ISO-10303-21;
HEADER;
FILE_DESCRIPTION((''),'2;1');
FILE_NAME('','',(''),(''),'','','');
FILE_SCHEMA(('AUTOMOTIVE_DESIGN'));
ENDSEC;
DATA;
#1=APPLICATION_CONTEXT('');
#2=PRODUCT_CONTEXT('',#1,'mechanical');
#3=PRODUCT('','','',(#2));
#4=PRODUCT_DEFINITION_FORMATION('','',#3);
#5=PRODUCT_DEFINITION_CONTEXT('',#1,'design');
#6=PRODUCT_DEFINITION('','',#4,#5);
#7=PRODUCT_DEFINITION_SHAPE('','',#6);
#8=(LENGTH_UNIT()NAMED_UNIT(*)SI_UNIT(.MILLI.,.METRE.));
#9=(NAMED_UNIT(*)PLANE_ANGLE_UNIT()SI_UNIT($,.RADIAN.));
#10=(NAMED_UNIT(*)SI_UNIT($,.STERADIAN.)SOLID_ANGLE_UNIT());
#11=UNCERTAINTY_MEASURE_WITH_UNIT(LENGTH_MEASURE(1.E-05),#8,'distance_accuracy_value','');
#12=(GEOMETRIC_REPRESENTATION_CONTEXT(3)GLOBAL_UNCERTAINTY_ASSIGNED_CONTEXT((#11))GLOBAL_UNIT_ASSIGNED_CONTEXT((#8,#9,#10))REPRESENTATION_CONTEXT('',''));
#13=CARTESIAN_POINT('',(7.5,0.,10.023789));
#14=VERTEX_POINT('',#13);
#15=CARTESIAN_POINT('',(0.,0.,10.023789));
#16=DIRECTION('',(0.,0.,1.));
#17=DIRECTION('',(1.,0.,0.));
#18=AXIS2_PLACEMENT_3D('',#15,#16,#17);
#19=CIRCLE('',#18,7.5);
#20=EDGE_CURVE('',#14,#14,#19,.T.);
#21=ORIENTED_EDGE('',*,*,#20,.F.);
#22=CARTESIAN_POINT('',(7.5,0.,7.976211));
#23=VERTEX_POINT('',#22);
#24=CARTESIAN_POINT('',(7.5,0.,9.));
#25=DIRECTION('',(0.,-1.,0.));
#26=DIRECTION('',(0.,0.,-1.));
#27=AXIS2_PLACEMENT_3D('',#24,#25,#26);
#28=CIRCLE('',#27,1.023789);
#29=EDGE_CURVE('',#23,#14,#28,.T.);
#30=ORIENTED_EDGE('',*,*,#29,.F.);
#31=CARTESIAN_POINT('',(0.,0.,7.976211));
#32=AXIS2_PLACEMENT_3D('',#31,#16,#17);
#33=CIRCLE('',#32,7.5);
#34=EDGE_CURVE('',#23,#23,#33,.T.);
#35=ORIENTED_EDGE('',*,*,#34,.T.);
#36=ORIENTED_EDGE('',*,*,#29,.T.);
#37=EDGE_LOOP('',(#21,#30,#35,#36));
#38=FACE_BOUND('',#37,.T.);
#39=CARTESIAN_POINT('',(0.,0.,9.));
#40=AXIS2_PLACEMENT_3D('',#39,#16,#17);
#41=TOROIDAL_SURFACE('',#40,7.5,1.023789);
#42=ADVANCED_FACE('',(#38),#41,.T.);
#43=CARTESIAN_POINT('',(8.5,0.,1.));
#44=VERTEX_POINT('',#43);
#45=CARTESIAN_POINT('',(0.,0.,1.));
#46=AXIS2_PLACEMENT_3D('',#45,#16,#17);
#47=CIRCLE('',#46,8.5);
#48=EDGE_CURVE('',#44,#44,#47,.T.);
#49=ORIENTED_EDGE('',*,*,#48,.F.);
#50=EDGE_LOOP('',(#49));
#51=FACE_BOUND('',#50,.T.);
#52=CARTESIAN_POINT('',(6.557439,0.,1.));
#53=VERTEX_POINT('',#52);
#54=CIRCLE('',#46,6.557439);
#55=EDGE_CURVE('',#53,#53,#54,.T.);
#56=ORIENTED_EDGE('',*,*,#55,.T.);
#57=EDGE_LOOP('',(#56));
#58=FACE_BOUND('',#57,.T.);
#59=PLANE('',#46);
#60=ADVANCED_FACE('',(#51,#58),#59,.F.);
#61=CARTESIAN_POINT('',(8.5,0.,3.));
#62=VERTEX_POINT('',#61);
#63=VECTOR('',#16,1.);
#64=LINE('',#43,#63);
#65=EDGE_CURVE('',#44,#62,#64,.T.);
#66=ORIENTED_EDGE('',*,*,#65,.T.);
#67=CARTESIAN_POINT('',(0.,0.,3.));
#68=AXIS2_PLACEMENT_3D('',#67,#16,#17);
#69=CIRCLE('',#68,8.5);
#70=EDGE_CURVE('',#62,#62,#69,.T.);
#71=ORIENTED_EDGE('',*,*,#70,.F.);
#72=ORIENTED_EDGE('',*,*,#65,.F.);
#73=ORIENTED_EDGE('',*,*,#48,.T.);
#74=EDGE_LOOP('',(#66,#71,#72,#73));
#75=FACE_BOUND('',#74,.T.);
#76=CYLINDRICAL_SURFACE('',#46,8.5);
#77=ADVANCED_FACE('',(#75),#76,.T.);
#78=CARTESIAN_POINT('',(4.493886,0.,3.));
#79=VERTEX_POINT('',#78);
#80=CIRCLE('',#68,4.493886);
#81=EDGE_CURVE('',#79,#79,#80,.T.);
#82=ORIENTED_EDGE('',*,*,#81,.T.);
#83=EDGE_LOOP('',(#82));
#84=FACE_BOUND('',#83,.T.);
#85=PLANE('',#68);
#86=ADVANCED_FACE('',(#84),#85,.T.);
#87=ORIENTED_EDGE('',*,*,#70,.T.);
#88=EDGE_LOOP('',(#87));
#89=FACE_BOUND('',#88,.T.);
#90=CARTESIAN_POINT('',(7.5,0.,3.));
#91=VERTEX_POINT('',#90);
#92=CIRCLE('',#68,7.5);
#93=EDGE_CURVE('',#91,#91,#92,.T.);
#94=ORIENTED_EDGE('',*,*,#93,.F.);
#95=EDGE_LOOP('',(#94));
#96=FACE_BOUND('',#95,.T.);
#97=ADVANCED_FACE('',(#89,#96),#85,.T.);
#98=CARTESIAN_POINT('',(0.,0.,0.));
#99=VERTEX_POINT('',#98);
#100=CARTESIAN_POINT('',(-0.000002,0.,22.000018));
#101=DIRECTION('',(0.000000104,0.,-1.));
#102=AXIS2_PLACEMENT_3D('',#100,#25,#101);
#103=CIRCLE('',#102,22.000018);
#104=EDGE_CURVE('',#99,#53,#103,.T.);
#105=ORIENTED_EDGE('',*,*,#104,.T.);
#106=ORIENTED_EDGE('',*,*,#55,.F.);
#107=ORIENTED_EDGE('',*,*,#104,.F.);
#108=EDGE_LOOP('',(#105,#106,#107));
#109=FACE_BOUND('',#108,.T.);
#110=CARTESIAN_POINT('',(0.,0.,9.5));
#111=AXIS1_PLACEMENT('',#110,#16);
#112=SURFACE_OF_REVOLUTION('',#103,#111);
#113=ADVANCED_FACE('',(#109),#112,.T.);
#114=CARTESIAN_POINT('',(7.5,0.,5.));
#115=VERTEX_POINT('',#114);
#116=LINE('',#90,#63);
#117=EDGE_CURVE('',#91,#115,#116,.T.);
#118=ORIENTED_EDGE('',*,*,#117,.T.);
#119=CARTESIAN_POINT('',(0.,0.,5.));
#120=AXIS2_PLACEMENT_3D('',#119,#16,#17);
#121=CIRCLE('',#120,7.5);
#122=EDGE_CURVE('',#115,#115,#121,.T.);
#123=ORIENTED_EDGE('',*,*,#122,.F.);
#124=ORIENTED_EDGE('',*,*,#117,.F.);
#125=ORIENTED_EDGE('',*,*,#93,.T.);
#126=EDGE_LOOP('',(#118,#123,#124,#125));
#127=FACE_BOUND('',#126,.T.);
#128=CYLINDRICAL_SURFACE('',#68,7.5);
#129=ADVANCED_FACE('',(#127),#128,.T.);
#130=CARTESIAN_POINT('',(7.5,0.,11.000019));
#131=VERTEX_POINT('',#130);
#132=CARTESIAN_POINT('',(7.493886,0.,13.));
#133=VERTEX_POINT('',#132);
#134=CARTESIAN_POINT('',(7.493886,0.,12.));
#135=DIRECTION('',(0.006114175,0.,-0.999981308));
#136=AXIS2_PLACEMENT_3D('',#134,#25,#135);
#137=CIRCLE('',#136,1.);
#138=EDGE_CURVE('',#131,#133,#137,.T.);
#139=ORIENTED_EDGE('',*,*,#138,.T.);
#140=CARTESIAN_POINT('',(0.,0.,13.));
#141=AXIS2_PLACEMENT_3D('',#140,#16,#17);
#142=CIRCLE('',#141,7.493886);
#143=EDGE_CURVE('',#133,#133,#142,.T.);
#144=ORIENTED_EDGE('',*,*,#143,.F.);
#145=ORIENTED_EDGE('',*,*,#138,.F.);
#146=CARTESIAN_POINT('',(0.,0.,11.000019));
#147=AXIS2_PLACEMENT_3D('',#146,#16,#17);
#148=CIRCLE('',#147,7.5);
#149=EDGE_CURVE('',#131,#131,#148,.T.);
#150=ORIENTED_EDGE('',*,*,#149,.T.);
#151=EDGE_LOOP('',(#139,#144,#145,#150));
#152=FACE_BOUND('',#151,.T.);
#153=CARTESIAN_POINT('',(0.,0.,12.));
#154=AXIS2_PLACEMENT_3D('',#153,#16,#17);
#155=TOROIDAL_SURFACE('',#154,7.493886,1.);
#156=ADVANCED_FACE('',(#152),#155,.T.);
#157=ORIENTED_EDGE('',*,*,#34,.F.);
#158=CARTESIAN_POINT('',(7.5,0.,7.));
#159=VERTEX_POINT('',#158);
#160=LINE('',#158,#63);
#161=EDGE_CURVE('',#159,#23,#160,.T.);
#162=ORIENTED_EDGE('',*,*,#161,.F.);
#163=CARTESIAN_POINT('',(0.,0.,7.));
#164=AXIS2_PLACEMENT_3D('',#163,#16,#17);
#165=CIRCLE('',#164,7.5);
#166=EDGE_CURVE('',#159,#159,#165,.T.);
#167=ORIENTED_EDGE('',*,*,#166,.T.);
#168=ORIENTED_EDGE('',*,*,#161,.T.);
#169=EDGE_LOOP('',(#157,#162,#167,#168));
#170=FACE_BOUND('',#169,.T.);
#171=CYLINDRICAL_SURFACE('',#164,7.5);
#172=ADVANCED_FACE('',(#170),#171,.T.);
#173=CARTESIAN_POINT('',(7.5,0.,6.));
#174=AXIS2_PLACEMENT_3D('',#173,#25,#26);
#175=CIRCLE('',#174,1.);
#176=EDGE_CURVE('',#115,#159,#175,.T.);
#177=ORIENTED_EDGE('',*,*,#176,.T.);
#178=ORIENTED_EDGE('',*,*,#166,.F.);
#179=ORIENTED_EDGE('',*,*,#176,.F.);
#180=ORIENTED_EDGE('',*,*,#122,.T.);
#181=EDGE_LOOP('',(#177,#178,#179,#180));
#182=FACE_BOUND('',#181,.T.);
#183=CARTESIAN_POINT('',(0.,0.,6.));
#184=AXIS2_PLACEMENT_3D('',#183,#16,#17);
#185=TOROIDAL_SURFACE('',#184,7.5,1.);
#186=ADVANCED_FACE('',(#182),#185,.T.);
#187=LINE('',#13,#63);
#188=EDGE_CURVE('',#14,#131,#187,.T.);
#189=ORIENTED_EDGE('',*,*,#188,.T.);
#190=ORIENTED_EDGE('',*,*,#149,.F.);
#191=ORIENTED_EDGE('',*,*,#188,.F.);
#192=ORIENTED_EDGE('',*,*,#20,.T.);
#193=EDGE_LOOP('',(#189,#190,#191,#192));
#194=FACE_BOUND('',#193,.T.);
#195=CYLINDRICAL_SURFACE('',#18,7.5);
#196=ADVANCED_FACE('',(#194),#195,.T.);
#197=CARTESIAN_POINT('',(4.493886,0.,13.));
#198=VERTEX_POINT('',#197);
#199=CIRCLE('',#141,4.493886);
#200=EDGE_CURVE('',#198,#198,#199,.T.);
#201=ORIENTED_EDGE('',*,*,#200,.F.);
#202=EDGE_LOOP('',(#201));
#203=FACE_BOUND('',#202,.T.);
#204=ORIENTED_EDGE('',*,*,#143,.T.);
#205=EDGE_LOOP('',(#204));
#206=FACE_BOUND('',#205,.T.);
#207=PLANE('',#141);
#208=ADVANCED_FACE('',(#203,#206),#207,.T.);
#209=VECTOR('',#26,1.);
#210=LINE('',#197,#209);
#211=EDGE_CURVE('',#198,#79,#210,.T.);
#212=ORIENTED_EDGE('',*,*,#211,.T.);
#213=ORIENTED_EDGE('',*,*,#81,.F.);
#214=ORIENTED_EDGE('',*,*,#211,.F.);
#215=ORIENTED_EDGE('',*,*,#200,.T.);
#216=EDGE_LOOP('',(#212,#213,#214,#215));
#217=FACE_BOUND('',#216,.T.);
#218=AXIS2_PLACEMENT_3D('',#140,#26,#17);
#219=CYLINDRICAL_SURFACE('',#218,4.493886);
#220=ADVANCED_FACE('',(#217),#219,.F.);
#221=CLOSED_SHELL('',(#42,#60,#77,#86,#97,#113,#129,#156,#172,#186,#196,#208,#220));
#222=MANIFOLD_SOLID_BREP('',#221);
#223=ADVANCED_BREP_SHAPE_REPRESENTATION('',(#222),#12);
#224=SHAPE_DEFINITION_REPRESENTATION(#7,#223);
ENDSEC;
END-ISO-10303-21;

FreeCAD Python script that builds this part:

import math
import FreeCAD as App
import Part
import Sketcher
Q = App.Units.Quantity

doc = App.newDocument("Part")
body = doc.addObject("PartDesign::Body", "Body")

# Sketch on XZ plane
sketch1 = doc.addObject("Sketcher::SketchObject", "Sketch")
body.addObject(sketch1)
sketch1.AttachmentSupport = (doc.XZ_Plane, [""])
sketch1.MapMode = "FlatFace"
sketch1.addGeometry(Part.LineSegment(App.Vector(8.5, 1, 0), App.Vector(8.5, 3, 0)), False)
sketch1.addGeometry(Part.LineSegment(App.Vector(8.5, 3, 0), App.Vector(7.5, 3, 0)), False)
sketch1.addGeometry(Part.LineSegment(App.Vector(7.5, 3, 0), App.Vector(7.5, 5, 0)), False)
sketch1.addGeometry(Part.ArcOfCircle(Part.Circle(App.Vector(7.5, 6, 0), App.Vector(0, 0, 1), 1), math.radians(-90), math.radians(90)), False)
sketch1.addGeometry(Part.LineSegment(App.Vector(7.5, 7, 0), App.Vector(7.5, 8, 0)), False)
sketch1.addGeometry(Part.ArcOfCircle(Part.Circle(App.Vector(7.5, 9, 0), App.Vector(0, 0, 1), 1), math.radians(-90), math.radians(90)), False)
sketch1.addGeometry(Part.LineSegment(App.Vector(7.5, 10, 0), App.Vector(7.5, 11, 0)), False)
sketch1.addGeometry(Part.ArcOfCircle(Part.Circle(App.Vector(7.5, 12, 0), App.Vector(0, 0, 1), 1), math.radians(-90), math.radians(90)), False)
sketch1.addGeometry(Part.LineSegment(App.Vector(7.5, 13, 0), App.Vector(4.5, 13, 0)), False)
sketch1.addGeometry(Part.LineSegment(App.Vector(4.5, 13, 0), App.Vector(4.5, 3, 0)), False)
sketch1.addGeometry(Part.LineSegment(App.Vector(4.5, 3, 0), App.Vector(0, 3, 0)), False)
sketch1.addGeometry(Part.LineSegment(App.Vector(0, 3, 0), App.Vector(0, 0, 0)), False)
sketch1.addGeometry(Part.ArcOfCircle(Part.Circle(App.Vector(0, 22, 0), App.Vector(0, 0, 1), 22), math.radians(-90), math.radians(-72.66)), False)
sketch1.addGeometry(Part.LineSegment(App.Vector(6.6, 1, 0), App.Vector(8.5, 1, 0)), False)
sketch1.addConstraint(Sketcher.Constraint("Coincident", 0, 2, 1, 1))
sketch1.addConstraint(Sketcher.Constraint("Coincident", 1, 2, 2, 1))
sketch1.addConstraint(Sketcher.Constraint("Coincident", 2, 2, 3, 1))
sketch1.addConstraint(Sketcher.Constraint("Coincident", 3, 2, 4, 1))
sketch1.addConstraint(Sketcher.Constraint("Coincident", 4, 2, 5, 1))
sketch1.addConstraint(Sketcher.Constraint("Coincident", 5, 2, 6, 1))
sketch1.addConstraint(Sketcher.Constraint("Coincident", 6, 2, 7, 1))
sketch1.addConstraint(Sketcher.Constraint("Tangent", 7, 2, 8, 1))
sketch1.addConstraint(Sketcher.Constraint("Coincident", 8, 2, 9, 1))
sketch1.addConstraint(Sketcher.Constraint("Coincident", 9, 2, 10, 1))
sketch1.addConstraint(Sketcher.Constraint("Coincident", 10, 2, 11, 1))
sketch1.addConstraint(Sketcher.Constraint("Coincident", 11, 2, 12, 1))
sketch1.addConstraint(Sketcher.Constraint("Coincident", 12, 2, 13, 1))
sketch1.addConstraint(Sketcher.Constraint("Coincident", 13, 2, 0, 1))
sketch1.addConstraint(Sketcher.Constraint("Vertical", 0))
sketch1.addConstraint(Sketcher.Constraint("Horizontal", 1))
sketch1.addConstraint(Sketcher.Constraint("Vertical", 2))
sketch1.addConstraint(Sketcher.Constraint("Vertical", 4))
sketch1.addConstraint(Sketcher.Constraint("Vertical", 6))
sketch1.addConstraint(Sketcher.Constraint("Horizontal", 8))
sketch1.addConstraint(Sketcher.Constraint("Vertical", 9))
sketch1.addConstraint(Sketcher.Constraint("Horizontal", 10))
sketch1.addConstraint(Sketcher.Constraint("Vertical", 11))
sketch1.addConstraint(Sketcher.Constraint("Horizontal", 13))
sketch1.addConstraint(Sketcher.Constraint("Coincident", 11, 2, -1, 1))
sketch1.addConstraint(Sketcher.Constraint("Equal", 3, 7))
sketch1.addConstraint(Sketcher.Constraint("Horizontal", 1, 2, 9, 2))
sketch1.addConstraint(Sketcher.Constraint("Vertical", 3, 3, 5, 3))
sketch1.addConstraint(Sketcher.Constraint("Vertical", 5, 3, 1, 2))
sketch1.addConstraint(Sketcher.Constraint("Vertical", 2, 2, 3, 2))
sketch1.addConstraint(Sketcher.Constraint("Vertical", 4, 2, 5, 2))
sketch1.addConstraint(Sketcher.Constraint("Equal", 0, 2))
sketch1.addConstraint(Sketcher.Constraint("Equal", 8, 11))
sketch1.addConstraint(Sketcher.Constraint("Radius", 3, Q("1 mm")))
sketch1.addConstraint(Sketcher.Constraint("DistanceX", 1, 2, 1, 1, Q("1 mm")))
sketch1.addConstraint(Sketcher.Constraint("DistanceX", 8, 2, 8, 1, Q("3 mm")))
sketch1.addConstraint(Sketcher.Constraint("DistanceY", 0, 1, 0, 2, Q("2 mm")))
sketch1.addConstraint(Sketcher.Constraint("DistanceY", 9, 2, 9, 1, Q("10 mm")))
sketch1.addConstraint(Sketcher.Constraint("DistanceY", -1, 1, 5, 3, Q("9 mm")))
sketch1.addConstraint(Sketcher.Constraint("DistanceX", -1, 1, 3, 3, Q("7.5 mm")))
sketch1.addConstraint(Sketcher.Constraint("Radius", 5, Q("1.023789 mm")))
sketch1.addConstraint(Sketcher.Constraint("Radius", 12, Q("22.000018 mm")))
sketch1.addConstraint(Sketcher.Constraint("DistanceX", 13, 1, 13, 2, Q("1.942561 mm")))
sketch1.addConstraint(Sketcher.Constraint("DistanceX", 10, 2, 10, 1, Q("4.493886 mm")))
revolution = doc.addObject("PartDesign::Revolution", "Revolution")
body.addObject(revolution)
revolution.Profile = sketch1
revolution.ReferenceAxis = (sketch1, ["V_Axis"])
revolution.Angle = 360

doc.recompute()
